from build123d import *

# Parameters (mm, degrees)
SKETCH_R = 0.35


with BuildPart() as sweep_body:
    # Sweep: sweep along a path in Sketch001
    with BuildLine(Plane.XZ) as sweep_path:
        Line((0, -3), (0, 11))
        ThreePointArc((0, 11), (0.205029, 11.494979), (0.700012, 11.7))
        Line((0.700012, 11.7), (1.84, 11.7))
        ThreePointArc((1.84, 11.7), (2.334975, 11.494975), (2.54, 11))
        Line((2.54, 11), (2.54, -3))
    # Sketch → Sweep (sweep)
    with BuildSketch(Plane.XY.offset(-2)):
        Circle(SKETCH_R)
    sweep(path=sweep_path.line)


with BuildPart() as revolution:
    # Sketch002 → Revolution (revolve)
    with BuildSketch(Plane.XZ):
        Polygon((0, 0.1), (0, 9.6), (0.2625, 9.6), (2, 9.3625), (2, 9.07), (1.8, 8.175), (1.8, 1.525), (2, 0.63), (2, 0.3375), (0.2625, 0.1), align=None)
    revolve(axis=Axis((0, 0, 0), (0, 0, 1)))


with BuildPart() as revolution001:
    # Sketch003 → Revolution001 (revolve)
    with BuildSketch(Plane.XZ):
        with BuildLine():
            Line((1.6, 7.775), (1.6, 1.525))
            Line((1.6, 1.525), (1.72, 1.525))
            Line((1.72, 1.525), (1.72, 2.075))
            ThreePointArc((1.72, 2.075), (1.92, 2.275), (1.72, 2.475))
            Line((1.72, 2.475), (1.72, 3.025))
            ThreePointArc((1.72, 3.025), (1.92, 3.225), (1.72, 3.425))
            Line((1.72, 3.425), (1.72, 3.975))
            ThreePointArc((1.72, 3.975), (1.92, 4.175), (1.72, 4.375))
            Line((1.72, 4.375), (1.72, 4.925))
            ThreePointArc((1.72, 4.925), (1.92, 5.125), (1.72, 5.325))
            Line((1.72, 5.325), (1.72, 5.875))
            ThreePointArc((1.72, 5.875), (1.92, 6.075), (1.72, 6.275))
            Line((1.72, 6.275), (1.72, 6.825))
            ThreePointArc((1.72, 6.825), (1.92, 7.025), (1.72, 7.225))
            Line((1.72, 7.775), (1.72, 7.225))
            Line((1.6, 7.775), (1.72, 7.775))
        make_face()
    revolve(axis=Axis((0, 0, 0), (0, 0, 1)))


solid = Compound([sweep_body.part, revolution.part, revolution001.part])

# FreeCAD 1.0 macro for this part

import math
import FreeCAD as App
import Part
import Sketcher
from FreeCAD import Vector
Q = App.Units.Quantity


def add_polygon(sketch, points):
    """Adds a closed chain of lines whose ends are joined by coincident constraints."""
    first, n = sketch.GeometryCount, len(points)
    for a, b in zip(points, points[1:] + points[:1]):
        sketch.addGeometry(Part.LineSegment(App.Vector(*a, 0), App.Vector(*b, 0)), False)
    for i in range(n):
        sketch.addConstraint(Sketcher.Constraint("Coincident", first + i, 2, first + (i + 1) % n, 1))

doc = App.newDocument("Part")
body = doc.addObject("PartDesign::Body", "Body")

sketch1 = doc.addObject("Sketcher::SketchObject", "Sketch")
body.addObject(sketch1)
sketch1.AttachmentSupport = (doc.XY_Plane, [""])
sketch1.MapMode = "FlatFace"
sketch1.AttachmentOffset = App.Placement(Vector(0, 0, -2), App.Rotation())
sketch1.addGeometry(Part.Circle(Vector(0, 0, 0), Vector(0, 0, 1), 0.35), False)
sketch1.addConstraint([
    Sketcher.Constraint("Coincident", 0, 3, -1, 1),
    Sketcher.Constraint("Diameter", 0, Q("0.7 mm")),
])

sketch2 = doc.addObject("Sketcher::SketchObject", "Sketch001")
body.addObject(sketch2)
sketch2.AttachmentSupport = (doc.XZ_Plane, [""])
sketch2.MapMode = "FlatFace"
sketch2.addGeometry([
    Part.LineSegment(Vector(0, -3, 0), Vector(0, 11, 0)),
    Part.ArcOfCircle(Part.Circle(Vector(0.7, 11, 0), Vector(0, 0, 1), 0.7), math.radians(90), math.radians(180)),
    Part.LineSegment(Vector(0.7, 11.7, 0), Vector(1.8, 11.7, 0)),
    Part.ArcOfCircle(Part.Circle(Vector(1.8, 11, 0), Vector(0, 0, 1), 0.7), math.radians(0), math.radians(90)),
    Part.LineSegment(Vector(2.5, 11, 0), Vector(2.5, -3, 0)),
], False)
sketch2.addConstraint([
    Sketcher.Constraint("Tangent", 0, 2, 1, 2),
    Sketcher.Constraint("Coincident", 1, 1, 2, 1),
    Sketcher.Constraint("Tangent", 2, 2, 3, 2),
    Sketcher.Constraint("Tangent", 3, 1, 4, 1),
    Sketcher.Constraint("Vertical", 0),
    Sketcher.Constraint("Horizontal", 2),
    Sketcher.Constraint("Vertical", 4),
    Sketcher.Constraint("Equal", 1, 3),
    Sketcher.Constraint("PointOnObject", 0, 1, -2),
    Sketcher.Constraint("Horizontal", 0, 1, 4, 2),
    Sketcher.Constraint("Radius", 1, Q("0.699999 mm")),
    Sketcher.Constraint("DistanceY", 0, 1, 0, 2, Q("14 mm")),
    Sketcher.Constraint("DistanceY", -1, 1, 1, 3, Q("11.000001 mm")),
    Sketcher.Constraint("DistanceX", -1, 1, 3, 3, Q("1.840001 mm")),
    Sketcher.Constraint("DistanceX", 2, 1, 2, 2, Q("1.139988 mm")),
])
doc.recompute()

additivepipe = doc.addObject("PartDesign::AdditivePipe", "AdditivePipe")
body.addObject(additivepipe)
additivepipe.Profile = sketch1
additivepipe.Spine = (sketch2, ["Edge1", "Edge2", "Edge3", "Edge4", "Edge5"])
body2 = doc.addObject("PartDesign::Body", "Body001")

sketch3 = doc.addObject("Sketcher::SketchObject", "Sketch002")
body2.addObject(sketch3)
sketch3.AttachmentSupport = (doc.getObject("XZ_Plane001"), [""])
sketch3.MapMode = "FlatFace"
add_polygon(sketch3, [(0, 9.6), (0, 0.1), (0.26, 0.1), (2, 0.34), (2, 0.63), (1.8, 1.52), (1.8, 8.18), (2, 9.07), (2, 9.36), (0.26, 9.6)])
sketch3.addConstraint([
    Sketcher.Constraint("Vertical", 0),
    Sketcher.Constraint("Horizontal", 1),
    Sketcher.Constraint("Vertical", 3),
    Sketcher.Constraint("Vertical", 5),
    Sketcher.Constraint("Vertical", 7),
    Sketcher.Constraint("Horizontal", 9),
    Sketcher.Constraint("PointOnObject", 0, 2, -2),
    Sketcher.Constraint("Vertical", 3, 2, 6, 2),
    Sketcher.Constraint("Vertical", 1, 2, 8, 2),
    Sketcher.Constraint("Equal", 3, 7),
    Sketcher.Constraint("Equal", 4, 6),
    Sketcher.Constraint("Equal", 2, 8),
    Sketcher.Constraint("DistanceY", 0, 2, 0, 1, Q("9.5 mm")),
    Sketcher.Constraint("DistanceX", -1, 1, 2, 2, Q("2 mm")),
    Sketcher.Constraint("DistanceY", 5, 1, 5, 2, Q("6.65 mm")),
    Sketcher.Constraint("DistanceY", -1, 1, 0, 2, Q("0.1 mm")),
    Sketcher.Constraint("DistanceX", -1, 1, 4, 2, Q("1.8 mm")),
    Sketcher.Constraint("DistanceY", -1, 1, 3, 2, Q("0.63 mm")),
    Sketcher.Constraint("DistanceX", 1, 1, 1, 2, Q("0.2625 mm")),
    Sketcher.Constraint("DistanceY", 3, 1, 3, 2, Q("0.2925 mm")),
])
revolution = doc.addObject("PartDesign::Revolution", "Revolution")
body2.addObject(revolution)
revolution.Profile = sketch3
revolution.ReferenceAxis = (sketch3, ["V_Axis"])
revolution.Angle = 360
body3 = doc.addObject("PartDesign::Body", "Body002")

sketch4 = doc.addObject("Sketcher::SketchObject", "Sketch003")
body3.addObject(sketch4)
sketch4.AttachmentSupport = (doc.getObject("XZ_Plane002"), [""])
sketch4.MapMode = "FlatFace"
sketch4.addGeometry([
    Part.LineSegment(Vector(1.6, 7.78, 0), Vector(1.6, 1.52, 0)),
    Part.LineSegment(Vector(1.6, 1.52, 0), Vector(1.72, 1.52, 0)),
    Part.LineSegment(Vector(1.72, 1.52, 0), Vector(1.72, 2.08, 0)),
    Part.ArcOfCircle(Part.Circle(Vector(1.72, 2.27, 0), Vector(0, 0, 1), 0.2), math.radians(-90), math.radians(90)),
    Part.LineSegment(Vector(1.72, 2.48, 0), Vector(1.72, 3.02, 0)),
    Part.ArcOfCircle(Part.Circle(Vector(1.72, 3.23, 0), Vector(0, 0, 1), 0.2), math.radians(-90), math.radians(90)),
    Part.LineSegment(Vector(1.72, 3.42, 0), Vector(1.72, 3.98, 0)),
    Part.ArcOfCircle(Part.Circle(Vector(1.72, 4.17, 0), Vector(0, 0, 1), 0.2), math.radians(-90), math.radians(90)),
    Part.LineSegment(Vector(1.72, 4.38, 0), Vector(1.72, 4.92, 0)),
    Part.ArcOfCircle(Part.Circle(Vector(1.72, 5.12, 0), Vector(0, 0, 1), 0.2), math.radians(-90), math.radians(90)),
    Part.LineSegment(Vector(1.72, 5.33, 0), Vector(1.72, 5.88, 0)),
    Part.ArcOfCircle(Part.Circle(Vector(1.72, 6.08, 0), Vector(0, 0, 1), 0.2), math.radians(-90), math.radians(90)),
    Part.LineSegment(Vector(1.72, 6.28, 0), Vector(1.72, 6.83, 0)),
    Part.ArcOfCircle(Part.Circle(Vector(1.72, 7.03, 0), Vector(0, 0, 1), 0.2), math.radians(-90), math.radians(90)),
    Part.LineSegment(Vector(1.72, 7.22, 0), Vector(1.72, 7.78, 0)),
    Part.LineSegment(Vector(1.72, 7.78, 0), Vector(1.6, 7.78, 0)),
], False)
sketch4.addConstraint([
    Sketcher.Constraint("Coincident", 0, 2, 1, 1),
    Sketcher.Constraint("Coincident", 1, 2, 2, 1),
    Sketcher.Constraint("Coincident", 2, 2, 3, 1),
    Sketcher.Constraint("Coincident", 3, 2, 4, 1),
    Sketcher.Constraint("Coincident", 4, 2, 5, 1),
    Sketcher.Constraint("Coincident", 5, 2, 6, 1),
    Sketcher.Constraint("Coincident", 6, 2, 7, 1),
    Sketcher.Constraint("Coincident", 7, 2, 8, 1),
    Sketcher.Constraint("Coincident", 8, 2, 9, 1),
    Sketcher.Constraint("Coincident", 9, 2, 10, 1),
    Sketcher.Constraint("Coincident", 10, 2, 11, 1),
    Sketcher.Constraint("Coincident", 11, 2, 12, 1),
    Sketcher.Constraint("Coincident", 12, 2, 13, 1),
    Sketcher.Constraint("Coincident", 13, 2, 14, 1),
    Sketcher.Constraint("Coincident", 14, 2, 15, 1),
    Sketcher.Constraint("Coincident", 15, 2, 0, 1),
    Sketcher.Constraint("Vertical", 0),
    Sketcher.Constraint("Horizontal", 1),
    Sketcher.Constraint("Vertical", 2),
    Sketcher.Constraint("Vertical", 4),
    Sketcher.Constraint("Vertical", 6),
    Sketcher.Constraint("Vertical", 8),
    Sketcher.Constraint("Vertical", 10),
    Sketcher.Constraint("Vertical", 12),
    Sketcher.Constraint("Vertical", 14),
    Sketcher.Constraint("Horizontal", 15),
    Sketcher.Constraint("Equal", 3, 5),
    Sketcher.Constraint("Equal", 5, 7),
    Sketcher.Constraint("Equal", 7, 9),
    Sketcher.Constraint("Equal", 9, 11),
    Sketcher.Constraint("Equal", 11, 13),
    Sketcher.Constraint("Vertical", 3, 3, 5, 3),
    Sketcher.Constraint("Vertical", 5, 3, 7, 3),
    Sketcher.Constraint("Vertical", 7, 3, 9, 3),
    Sketcher.Constraint("Vertical", 9, 3, 11, 3),
    Sketcher.Constraint("Vertical", 11, 3, 13, 3),
    Sketcher.Constraint("Vertical", 13, 3, 1, 2),
    Sketcher.Constraint("Vertical", 2, 2, 3, 2),
    Sketcher.Constraint("Vertical", 4, 2, 5, 2),
    Sketcher.Constraint("Vertical", 6, 2, 7, 2),
    Sketcher.Constraint("Vertical", 8, 2, 9, 2),
    Sketcher.Constraint("Vertical", 10, 2, 11, 2),
    Sketcher.Constraint("Vertical", 12, 2, 13, 2),
    Sketcher.Constraint("Equal", 2, 4),
    Sketcher.Constraint("Equal", 4, 6),
    Sketcher.Constraint("Equal", 6, 8),
    Sketcher.Constraint("Equal", 8, 10),
    Sketcher.Constraint("Equal", 10, 12),
    Sketcher.Constraint("Equal", 12, 14),
    Sketcher.Constraint("Radius", 3, Q("0.2 mm")),
    Sketcher.Constraint("DistanceX", 1, 1, 1, 2, Q("0.12 mm")),
    Sketcher.Constraint("DistanceY", 0, 2, 0, 1, Q("6.25 mm")),
    Sketcher.Constraint("DistanceX", -1, 1, 0, 2, Q("1.6 mm")),
    Sketcher.Constraint("DistanceY", -1, 1, 3, 3, Q("2.275 mm")),
])
revolution2 = doc.addObject("PartDesign::Revolution", "Revolution001")
body3.addObject(revolution2)
revolution2.Profile = sketch4
revolution2.ReferenceAxis = (sketch4, ["V_Axis"])
revolution2.Angle = 360

doc.recompute()
